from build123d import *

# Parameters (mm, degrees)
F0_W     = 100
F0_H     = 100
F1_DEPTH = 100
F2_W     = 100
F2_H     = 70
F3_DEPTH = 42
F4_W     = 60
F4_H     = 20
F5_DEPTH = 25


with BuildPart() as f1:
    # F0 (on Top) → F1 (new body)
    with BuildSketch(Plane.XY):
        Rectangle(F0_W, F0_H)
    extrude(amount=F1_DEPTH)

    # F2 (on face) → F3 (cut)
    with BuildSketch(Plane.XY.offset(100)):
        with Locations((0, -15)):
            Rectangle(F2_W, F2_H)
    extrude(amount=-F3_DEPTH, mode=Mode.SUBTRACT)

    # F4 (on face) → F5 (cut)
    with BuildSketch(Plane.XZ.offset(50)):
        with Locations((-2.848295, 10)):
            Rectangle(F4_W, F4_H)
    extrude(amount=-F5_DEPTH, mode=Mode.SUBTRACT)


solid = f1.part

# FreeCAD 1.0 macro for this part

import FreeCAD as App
import Part
import Sketcher
from FreeCAD import Vector
Q = App.Units.Quantity

doc = App.newDocument("Part")
body = doc.addObject("PartDesign::Body", "Body")

# Sketch on XY plane
sketch1 = body.newObject("Sketcher::SketchObject", "Sketch")
sketch1.AttachmentSupport = (doc.getObject("XY_Plane"), [""])
sketch1.MapMode = "FlatFace"
sketch1.addGeometry(Part.LineSegment(Vector(-50, 50, 0), Vector(-50, -50, 0)), False)
sketch1.addGeometry(Part.LineSegment(Vector(-50, -50, 0), Vector(50, -50, 0)), False)
sketch1.addGeometry(Part.LineSegment(Vector(50, -50, 0), Vector(50, 50, 0)), False)
sketch1.addGeometry(Part.LineSegment(Vector(50, 50, 0), Vector(-50, 50, 0)), False)
sketch1.addConstraint(Sketcher.Constraint("Coincident", 0, 2, 1, 1))
sketch1.addConstraint(Sketcher.Constraint("Coincident", 1, 2, 2, 1))
sketch1.addConstraint(Sketcher.Constraint("Coincident", 2, 2, 3, 1))
sketch1.addConstraint(Sketcher.Constraint("Coincident", 3, 2, 0, 1))
sketch1.addConstraint(Sketcher.Constraint("Vertical", 0))
sketch1.addConstraint(Sketcher.Constraint("Horizontal", 1))
sketch1.addConstraint(Sketcher.Constraint("Vertical", 2))
sketch1.addConstraint(Sketcher.Constraint("Horizontal", 3))
sketch1.addConstraint(Sketcher.Constraint("Symmetric", 0, 2, 2, 2, -1, 1))
sketch1.addConstraint(Sketcher.Constraint("Equal", 3, 0))
sketch1.addConstraint(Sketcher.Constraint("DistanceX", 1, 1, 1, 2, Q("100 mm")))
pad1 = body.newObject("PartDesign::Pad", "Pad")
pad1.Profile = sketch1
pad1.Length = 100

# Sketch on XY plane
sketch2 = body.newObject("Sketcher::SketchObject", "Sketch001")
sketch2.AttachmentSupport = (doc.getObject("XY_Plane"), [""])
sketch2.MapMode = "FlatFace"
sketch2.AttachmentOffset = App.Placement(Vector(0, 0, 100), App.Rotation())
sketch2.addGeometry(Part.LineSegment(Vector(-50, 20, 0), Vector(-50, -50, 0)), False)
sketch2.addGeometry(Part.LineSegment(Vector(-50, -50, 0), Vector(50, -50, 0)), False)
sketch2.addGeometry(Part.LineSegment(Vector(50, -50, 0), Vector(50, 20, 0)), False)
sketch2.addGeometry(Part.LineSegment(Vector(50, 20, 0), Vector(-50, 20, 0)), False)
sketch2.addConstraint(Sketcher.Constraint("Coincident", 0, 2, 1, 1))
sketch2.addConstraint(Sketcher.Constraint("Coincident", 1, 2, 2, 1))
sketch2.addConstraint(Sketcher.Constraint("Coincident", 2, 2, 3, 1))
sketch2.addConstraint(Sketcher.Constraint("Coincident", 3, 2, 0, 1))
sketch2.addConstraint(Sketcher.Constraint("Vertical", 0))
sketch2.addConstraint(Sketcher.Constraint("Horizontal", 1))
sketch2.addConstraint(Sketcher.Constraint("Vertical", 2))
sketch2.addConstraint(Sketcher.Constraint("Horizontal", 3))
sketch2.addConstraint(Sketcher.Constraint("DistanceX", 1, 1, 1, 2, Q("100 mm")))
sketch2.addConstraint(Sketcher.Constraint("DistanceY", 0, 2, 0, 1, Q("70 mm")))
sketch2.addConstraint(Sketcher.Constraint("DistanceX", 0, 2, -1, 1, Q("50 mm")))
sketch2.addConstraint(Sketcher.Constraint("DistanceY", 0, 2, -1, 1, Q("50 mm")))
pocket1 = body.newObject("PartDesign::Pocket", "Pocket")
pocket1.Profile = sketch2
pocket1.Length = 42

# Sketch on XZ plane
sketch3 = body.newObject("Sketcher::SketchObject", "Sketch002")
sketch3.AttachmentSupport = (doc.getObject("XZ_Plane"), [""])
sketch3.MapMode = "FlatFace"
sketch3.AttachmentOffset = App.Placement(Vector(0, 0, 50), App.Rotation())
sketch3.addGeometry(Part.LineSegment(Vector(-33, 20, 0), Vector(-33, 0, 0)), False)
sketch3.addGeometry(Part.LineSegment(Vector(-33, 0, 0), Vector(27, 0, 0)), False)
sketch3.addGeometry(Part.LineSegment(Vector(27, 0, 0), Vector(27, 20, 0)), False)
sketch3.addGeometry(Part.LineSegment(Vector(27, 20, 0), Vector(-33, 20, 0)), False)
sketch3.addConstraint(Sketcher.Constraint("Coincident", 0, 2, 1, 1))
sketch3.addConstraint(Sketcher.Constraint("Coincident", 1, 2, 2, 1))
sketch3.addConstraint(Sketcher.Constraint("Coincident", 2, 2, 3, 1))
sketch3.addConstraint(Sketcher.Constraint("Coincident", 3, 2, 0, 1))
sketch3.addConstraint(Sketcher.Constraint("Vertical", 0))
sketch3.addConstraint(Sketcher.Constraint("Horizontal", 1))
sketch3.addConstraint(Sketcher.Constraint("Vertical", 2))
sketch3.addConstraint(Sketcher.Constraint("Horizontal", 3))
sketch3.addConstraint(Sketcher.Constraint("PointOnObject", 0, 2, -1))
sketch3.addConstraint(Sketcher.Constraint("DistanceX", 1, 1, 1, 2, Q("60 mm")))
sketch3.addConstraint(Sketcher.Constraint("DistanceY", 0, 2, 0, 1, Q("20 mm")))
sketch3.addConstraint(Sketcher.Constraint("DistanceX", 0, 2, -1, 1, Q("32.848295 mm")))
pocket2 = body.newObject("PartDesign::Pocket", "Pocket001")
pocket2.Profile = sketch3
pocket2.Length = 25

doc.recompute()
